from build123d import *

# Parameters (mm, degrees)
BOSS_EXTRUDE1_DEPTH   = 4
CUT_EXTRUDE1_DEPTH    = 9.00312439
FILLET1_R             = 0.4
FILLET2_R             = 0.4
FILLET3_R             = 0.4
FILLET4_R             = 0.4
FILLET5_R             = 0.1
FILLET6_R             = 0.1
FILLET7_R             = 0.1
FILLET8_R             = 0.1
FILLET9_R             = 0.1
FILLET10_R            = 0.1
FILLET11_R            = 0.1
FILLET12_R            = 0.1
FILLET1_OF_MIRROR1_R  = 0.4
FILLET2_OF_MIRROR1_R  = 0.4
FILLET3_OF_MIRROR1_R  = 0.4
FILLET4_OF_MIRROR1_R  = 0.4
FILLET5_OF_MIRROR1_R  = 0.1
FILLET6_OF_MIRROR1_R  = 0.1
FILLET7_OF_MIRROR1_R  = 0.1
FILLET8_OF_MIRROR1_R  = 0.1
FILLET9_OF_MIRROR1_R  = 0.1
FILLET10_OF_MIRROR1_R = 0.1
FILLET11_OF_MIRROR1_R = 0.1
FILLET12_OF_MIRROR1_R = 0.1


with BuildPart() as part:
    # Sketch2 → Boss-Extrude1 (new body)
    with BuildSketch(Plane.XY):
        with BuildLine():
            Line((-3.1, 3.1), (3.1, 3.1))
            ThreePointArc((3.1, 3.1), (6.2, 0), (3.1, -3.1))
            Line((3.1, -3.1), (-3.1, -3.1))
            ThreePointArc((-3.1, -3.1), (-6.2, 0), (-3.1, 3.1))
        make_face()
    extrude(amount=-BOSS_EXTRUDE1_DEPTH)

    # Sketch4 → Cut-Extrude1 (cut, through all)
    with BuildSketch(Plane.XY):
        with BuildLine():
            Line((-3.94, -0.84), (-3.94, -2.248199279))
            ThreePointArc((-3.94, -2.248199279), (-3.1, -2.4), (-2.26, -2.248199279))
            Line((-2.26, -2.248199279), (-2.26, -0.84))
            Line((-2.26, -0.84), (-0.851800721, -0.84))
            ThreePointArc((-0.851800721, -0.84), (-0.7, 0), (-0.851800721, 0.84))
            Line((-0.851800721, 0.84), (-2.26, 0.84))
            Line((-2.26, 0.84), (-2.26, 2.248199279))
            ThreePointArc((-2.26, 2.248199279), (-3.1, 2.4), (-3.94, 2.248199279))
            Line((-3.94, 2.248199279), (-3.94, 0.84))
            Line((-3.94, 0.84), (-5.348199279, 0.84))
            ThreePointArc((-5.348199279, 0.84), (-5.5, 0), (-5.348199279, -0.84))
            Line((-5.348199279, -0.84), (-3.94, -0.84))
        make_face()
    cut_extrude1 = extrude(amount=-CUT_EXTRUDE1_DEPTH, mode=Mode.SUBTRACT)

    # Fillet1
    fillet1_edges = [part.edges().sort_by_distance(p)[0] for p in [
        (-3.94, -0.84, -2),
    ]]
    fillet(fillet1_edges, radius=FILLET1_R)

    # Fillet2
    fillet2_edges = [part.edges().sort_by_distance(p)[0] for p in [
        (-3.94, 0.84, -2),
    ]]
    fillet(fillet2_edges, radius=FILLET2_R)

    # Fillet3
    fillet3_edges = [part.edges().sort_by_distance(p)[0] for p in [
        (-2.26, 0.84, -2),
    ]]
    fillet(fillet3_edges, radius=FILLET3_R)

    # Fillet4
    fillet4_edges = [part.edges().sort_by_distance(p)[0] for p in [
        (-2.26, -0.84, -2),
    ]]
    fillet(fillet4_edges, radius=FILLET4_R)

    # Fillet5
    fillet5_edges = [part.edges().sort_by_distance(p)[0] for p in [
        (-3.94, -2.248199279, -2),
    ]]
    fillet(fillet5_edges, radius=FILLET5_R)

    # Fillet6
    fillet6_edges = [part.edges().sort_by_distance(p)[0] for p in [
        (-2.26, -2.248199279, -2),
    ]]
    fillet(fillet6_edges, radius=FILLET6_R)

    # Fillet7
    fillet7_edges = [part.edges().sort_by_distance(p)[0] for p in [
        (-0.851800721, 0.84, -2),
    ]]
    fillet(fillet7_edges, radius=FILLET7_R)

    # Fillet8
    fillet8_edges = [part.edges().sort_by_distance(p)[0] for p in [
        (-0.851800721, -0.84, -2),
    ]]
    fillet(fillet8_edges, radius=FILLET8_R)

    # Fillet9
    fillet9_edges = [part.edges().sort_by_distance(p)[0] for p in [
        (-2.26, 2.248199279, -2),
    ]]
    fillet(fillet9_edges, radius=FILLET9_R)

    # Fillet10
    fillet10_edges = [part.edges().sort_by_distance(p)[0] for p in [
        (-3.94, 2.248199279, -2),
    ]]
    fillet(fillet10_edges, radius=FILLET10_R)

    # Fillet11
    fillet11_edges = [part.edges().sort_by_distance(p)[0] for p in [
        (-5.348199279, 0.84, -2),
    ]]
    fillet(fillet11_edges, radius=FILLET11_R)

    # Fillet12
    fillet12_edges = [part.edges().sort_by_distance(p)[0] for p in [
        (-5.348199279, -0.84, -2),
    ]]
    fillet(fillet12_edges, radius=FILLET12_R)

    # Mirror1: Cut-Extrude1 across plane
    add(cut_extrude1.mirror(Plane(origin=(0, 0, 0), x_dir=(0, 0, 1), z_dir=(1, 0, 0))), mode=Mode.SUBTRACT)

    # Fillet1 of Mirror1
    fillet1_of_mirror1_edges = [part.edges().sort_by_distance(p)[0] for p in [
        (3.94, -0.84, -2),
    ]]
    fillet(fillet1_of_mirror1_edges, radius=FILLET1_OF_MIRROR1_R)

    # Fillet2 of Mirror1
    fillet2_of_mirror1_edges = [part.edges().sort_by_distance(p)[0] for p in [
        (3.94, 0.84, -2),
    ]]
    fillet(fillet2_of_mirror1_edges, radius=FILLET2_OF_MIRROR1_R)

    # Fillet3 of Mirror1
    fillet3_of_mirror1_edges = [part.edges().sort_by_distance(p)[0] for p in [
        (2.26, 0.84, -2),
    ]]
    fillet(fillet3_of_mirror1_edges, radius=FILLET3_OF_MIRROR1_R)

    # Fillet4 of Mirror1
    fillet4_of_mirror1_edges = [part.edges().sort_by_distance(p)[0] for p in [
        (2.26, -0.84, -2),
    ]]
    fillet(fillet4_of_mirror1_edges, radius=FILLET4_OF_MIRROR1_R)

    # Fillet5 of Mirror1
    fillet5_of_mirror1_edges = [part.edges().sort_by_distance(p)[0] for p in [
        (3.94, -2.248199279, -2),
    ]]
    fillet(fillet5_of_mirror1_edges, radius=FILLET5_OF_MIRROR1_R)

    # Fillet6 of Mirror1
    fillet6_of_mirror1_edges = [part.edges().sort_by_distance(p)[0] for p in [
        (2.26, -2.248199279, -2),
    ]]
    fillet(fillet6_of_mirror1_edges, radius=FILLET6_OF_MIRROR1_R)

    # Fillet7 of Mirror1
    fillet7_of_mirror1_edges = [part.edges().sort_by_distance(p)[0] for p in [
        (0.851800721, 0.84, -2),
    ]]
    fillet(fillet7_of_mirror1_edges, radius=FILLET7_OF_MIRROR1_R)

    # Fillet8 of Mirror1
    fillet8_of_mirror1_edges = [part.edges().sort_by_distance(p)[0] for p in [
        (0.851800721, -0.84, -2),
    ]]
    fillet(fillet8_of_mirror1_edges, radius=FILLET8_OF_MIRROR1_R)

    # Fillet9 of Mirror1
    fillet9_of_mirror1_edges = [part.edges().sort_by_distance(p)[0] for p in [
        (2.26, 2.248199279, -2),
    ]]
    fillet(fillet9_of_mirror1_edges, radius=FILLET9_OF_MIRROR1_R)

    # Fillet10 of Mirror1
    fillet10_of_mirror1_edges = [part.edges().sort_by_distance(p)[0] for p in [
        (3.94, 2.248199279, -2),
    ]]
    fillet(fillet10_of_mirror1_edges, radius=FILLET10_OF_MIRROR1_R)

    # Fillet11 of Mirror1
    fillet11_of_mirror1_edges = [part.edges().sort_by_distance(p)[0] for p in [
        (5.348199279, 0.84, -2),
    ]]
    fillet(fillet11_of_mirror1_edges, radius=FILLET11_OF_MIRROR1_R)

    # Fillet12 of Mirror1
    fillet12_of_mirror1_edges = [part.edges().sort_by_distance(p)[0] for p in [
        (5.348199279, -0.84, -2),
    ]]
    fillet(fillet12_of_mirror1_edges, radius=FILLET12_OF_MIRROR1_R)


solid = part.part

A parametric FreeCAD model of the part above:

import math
import FreeCAD as App
import Part
import Sketcher

V = App.Vector


def edges_at(feature, points):
    """Names of the edges that pass closest to the given points."""
    edges = feature.Shape.Edges
    near = lambda p: min(range(len(edges)), key=lambda i: edges[i].distToShape(Part.Vertex(*p))[0])
    return sorted({f"Edge{near(p) + 1}" for p in points})

doc = App.newDocument("Part")
params = doc.addObject("Spreadsheet::Sheet", "Params")
for row, (alias, value) in enumerate([
    ("sketch1_radius", "3.1 mm"),
    ("sketch1_width", "6.2 mm"),
    ("pad1_length", "4 mm"),
    ("sketch2_radius", "2.4 mm"),
    ("fillet_radius", "0.4 mm"),
    ("fillet2_radius", "0.4 mm"),
    ("fillet3_radius", "0.4 mm"),
    ("fillet4_radius", "0.4 mm"),
    ("fillet5_radius", "0.1 mm"),
    ("fillet6_radius", "0.1 mm"),
    ("fillet7_radius", "0.1 mm"),
    ("fillet8_radius", "0.1 mm"),
    ("fillet9_radius", "0.1 mm"),
    ("fillet10_radius", "0.1 mm"),
    ("fillet11_radius", "0.1 mm"),
    ("fillet12_radius", "0.1 mm"),
    ("fillet13_radius", "0.4 mm"),
    ("fillet14_radius", "0.4 mm"),
    ("fillet15_radius", "0.4 mm"),
    ("fillet16_radius", "0.4 mm"),
    ("fillet17_radius", "0.1 mm"),
    ("fillet18_radius", "0.1 mm"),
    ("fillet19_radius", "0.1 mm"),
    ("fillet20_radius", "0.1 mm"),
    ("fillet21_radius", "0.1 mm"),
    ("fillet22_radius", "0.1 mm"),
    ("fillet23_radius", "0.1 mm"),
    ("fillet24_radius", "0.1 mm"),
], start=1):
    params.set(f"A{row}", alias)
    params.set(f"B{row}", "=" + value)
    params.setAlias(f"B{row}", alias)

body = doc.addObject("PartDesign::Body", "Body")

# Sketch on XY plane
sketch1 = doc.addObject("Sketcher::SketchObject", "Sketch")
body.addObject(sketch1)
sketch1.AttachmentSupport = (doc.XY_Plane, [""])
sketch1.MapMode = "FlatFace"
sketch1.addGeometry(Part.LineSegment(V(3.1, 3.1, 0), V(-3.1, 3.1, 0)), False)
sketch1.addGeometry(Part.ArcOfCircle(Part.Circle(V(-3.1, 0, 0), V(0, 0, 1), 3.1), math.radians(90), math.radians(270)), False)
sketch1.addGeometry(Part.LineSegment(V(-3.1, -3.1, 0), V(3.1, -3.1, 0)), False)
sketch1.addGeometry(Part.ArcOfCircle(Part.Circle(V(3.1, 0, 0), V(0, 0, 1), 3.1), math.radians(-90), math.radians(90)), False)
sketch1.addConstraint(Sketcher.Constraint("Tangent", 0, 2, 1, 1))
sketch1.addConstraint(Sketcher.Constraint("Tangent", 1, 2, 2, 1))
sketch1.addConstraint(Sketcher.Constraint("Tangent", 2, 2, 3, 1))
sketch1.addConstraint(Sketcher.Constraint("Tangent", 3, 2, 0, 1))
sketch1.addConstraint(Sketcher.Constraint("Horizontal", 0))
sketch1.addConstraint(Sketcher.Constraint("Horizontal", 2))
sketch1.addConstraint(Sketcher.Constraint("Symmetric", 1, 3, 3, 3, -1, 1))
sketch1.addConstraint(Sketcher.Constraint("Radius", 1, 3.1))
sketch1.addConstraint(Sketcher.Constraint("DistanceX", 0, 2, 0, 1, 6.2))
sketch1.setExpression("Constraints[7]", "Params.sketch1_radius")
sketch1.setExpression("Constraints[8]", "Params.sketch1_width")
pad1 = doc.addObject("PartDesign::Pad", "Pad")
body.addObject(pad1)
pad1.Profile = sketch1
pad1.setExpression("Length", "Params.pad1_length")
pad1.Reversed = True

# Sketch on XY plane
sketch2 = doc.addObject("Sketcher::SketchObject", "Sketch001")
body.addObject(sketch2)
sketch2.AttachmentSupport = (doc.XY_Plane, [""])
sketch2.MapMode = "FlatFace"
sketch2.addGeometry(Part.LineSegment(V(-3.94, -0.84, 0), V(-3.94, -2.248199, 0)), False)
sketch2.addGeometry(Part.ArcOfCircle(Part.Circle(V(-3.1, 0, 0), V(0, 0, 1), 2.4), math.radians(-110.487315), math.radians(-69.512685)), False)
sketch2.addGeometry(Part.LineSegment(V(-2.26, -2.248199, 0), V(-2.26, -0.84, 0)), False)
sketch2.addGeometry(Part.LineSegment(V(-2.26, -0.84, 0), V(-0.851801, -0.84, 0)), False)
sketch2.addGeometry(Part.ArcOfCircle(Part.Circle(V(-3.1, 0, 0), V(0, 0, 1), 2.4), math.radians(-20.487315), math.radians(20.487315)), False)
sketch2.addGeometry(Part.LineSegment(V(-0.851801, 0.84, 0), V(-2.26, 0.84, 0)), False)
sketch2.addGeometry(Part.LineSegment(V(-2.26, 0.84, 0), V(-2.26, 2.248199, 0)), False)
sketch2.addGeometry(Part.ArcOfCircle(Part.Circle(V(-3.1, 0, 0), V(0, 0, 1), 2.4), math.radians(69.512685), math.radians(110.487315)), False)
sketch2.addGeometry(Part.LineSegment(V(-3.94, 2.248199, 0), V(-3.94, 0.84, 0)), False)
sketch2.addGeometry(Part.LineSegment(V(-3.94, 0.84, 0), V(-5.348199, 0.84, 0)), False)
sketch2.addGeometry(Part.ArcOfCircle(Part.Circle(V(-3.1, 0, 0), V(0, 0, 1), 2.4), math.radians(159.512685), math.radians(200.487315)), False)
sketch2.addGeometry(Part.LineSegment(V(-5.348199, -0.84, 0), V(-3.94, -0.84, 0)), False)
sketch2.addConstraint(Sketcher.Constraint("Coincident", 0, 2, 1, 1))
sketch2.addConstraint(Sketcher.Constraint("Coincident", 1, 2, 2, 1))
sketch2.addConstraint(Sketcher.Constraint("Coincident", 2, 2, 3, 1))
sketch2.addConstraint(Sketcher.Constraint("Coincident", 3, 2, 4, 1))
sketch2.addConstraint(Sketcher.Constraint("Coincident", 4, 2, 5, 1))
sketch2.addConstraint(Sketcher.Constraint("Coincident", 5, 2, 6, 1))
sketch2.addConstraint(Sketcher.Constraint("Coincident", 6, 2, 7, 1))
sketch2.addConstraint(Sketcher.Constraint("Coincident", 7, 2, 8, 1))
sketch2.addConstraint(Sketcher.Constraint("Coincident", 8, 2, 9, 1))
sketch2.addConstraint(Sketcher.Constraint("Coincident", 9, 2, 10, 1))
sketch2.addConstraint(Sketcher.Constraint("Coincident", 10, 2, 11, 1))
sketch2.addConstraint(Sketcher.Constraint("Coincident", 11, 2, 0, 1))
sketch2.addConstraint(Sketcher.Constraint("Vertical", 0))
sketch2.addConstraint(Sketcher.Constraint("Vertical", 2))
sketch2.addConstraint(Sketcher.Constraint("Horizontal", 3))
sketch2.addConstraint(Sketcher.Constraint("Horizontal", 5))
sketch2.addConstraint(Sketcher.Constraint("Vertical", 6))
sketch2.addConstraint(Sketcher.Constraint("Vertical", 8))
sketch2.addConstraint(Sketcher.Constraint("Horizontal", 9))
sketch2.addConstraint(Sketcher.Constraint("Horizontal", 11))
sketch2.addConstraint(Sketcher.Constraint("Coincident", 4, 3, 1, 3))
sketch2.addConstraint(Sketcher.Constraint("Coincident", 7, 3, 1, 3))
sketch2.addConstraint(Sketcher.Constraint("Coincident", 10, 3, 1, 3))
sketch2.addConstraint(Sketcher.Constraint("Equal", 1, 4))
sketch2.addConstraint(Sketcher.Constraint("Equal", 4, 7))
sketch2.addConstraint(Sketcher.Constraint("Equal", 7, 10))
sketch2.addConstraint(Sketcher.Constraint("Symmetric", 3, 2, 4, 2, -1))
sketch2.addConstraint(Sketcher.Constraint("Symmetric", 8, 2, 11, 2, -1))
sketch2.addConstraint(Sketcher.Constraint("Horizontal", 0, 2, 1, 2))
sketch2.addConstraint(Sketcher.Constraint("Horizontal", 6, 2, 7, 2))
sketch2.addConstraint(Sketcher.Constraint("Horizontal", 5, 2, 8, 2))
sketch2.addConstraint(Sketcher.Constraint("Equal", 11, 0))
sketch2.addConstraint(Sketcher.Constraint("Radius", 1, 2.4))
sketch2.addConstraint(Sketcher.Constraint("DistanceX", 1, 3, -1, 1, 3.1))
sketch2.addConstraint(Sketcher.Constraint("DistanceX", 0, 2, -1, 1, 3.94))
sketch2.setExpression("Constraints[32]", "Params.sketch2_radius")
pocket1 = doc.addObject("PartDesign::Pocket", "Pocket")
body.addObject(pocket1)
pocket1.Profile = sketch2
pocket1.Type = "ThroughAll"
doc.recompute()

fillet = doc.addObject("PartDesign::Fillet", "Fillet")
body.addObject(fillet)
fillet.Base = (pocket1, edges_at(pocket1, [(-3.94, -0.84, -2)]))
fillet.setExpression("Radius", "Params.fillet_radius")
doc.recompute()

fillet2 = doc.addObject("PartDesign::Fillet", "Fillet001")
body.addObject(fillet2)
fillet2.Base = (fillet, edges_at(fillet, [(-3.94, 0.84, -2)]))
fillet2.setExpression("Radius", "Params.fillet2_radius")
doc.recompute()

fillet3 = doc.addObject("PartDesign::Fillet", "Fillet002")
body.addObject(fillet3)
fillet3.Base = (fillet2, edges_at(fillet2, [(-2.26, 0.84, -2)]))
fillet3.setExpression("Radius", "Params.fillet3_radius")
doc.recompute()

fillet4 = doc.addObject("PartDesign::Fillet", "Fillet003")
body.addObject(fillet4)
fillet4.Base = (fillet3, edges_at(fillet3, [(-2.26, -0.84, -2)]))
fillet4.setExpression("Radius", "Params.fillet4_radius")
doc.recompute()

fillet5 = doc.addObject("PartDesign::Fillet", "Fillet004")
body.addObject(fillet5)
fillet5.Base = (fillet4, edges_at(fillet4, [(-3.94, -2.248, -2)]))
fillet5.setExpression("Radius", "Params.fillet5_radius")
doc.recompute()

fillet6 = doc.addObject("PartDesign::Fillet", "Fillet005")
body.addObject(fillet6)
fillet6.Base = (fillet5, edges_at(fillet5, [(-2.26, -2.248, -2)]))
fillet6.setExpression("Radius", "Params.fillet6_radius")
doc.recompute()

fillet7 = doc.addObject("PartDesign::Fillet", "Fillet006")
body.addObject(fillet7)
fillet7.Base = (fillet6, edges_at(fillet6, [(-0.852, 0.84, -2)]))
fillet7.setExpression("Radius", "Params.fillet7_radius")
doc.recompute()

fillet8 = doc.addObject("PartDesign::Fillet", "Fillet007")
body.addObject(fillet8)
fillet8.Base = (fillet7, edges_at(fillet7, [(-0.852, -0.84, -2)]))
fillet8.setExpression("Radius", "Params.fillet8_radius")
doc.recompute()

fillet9 = doc.addObject("PartDesign::Fillet", "Fillet008")
body.addObject(fillet9)
fillet9.Base = (fillet8, edges_at(fillet8, [(-2.26, 2.248, -2)]))
fillet9.setExpression("Radius", "Params.fillet9_radius")
doc.recompute()

fillet10 = doc.addObject("PartDesign::Fillet", "Fillet009")
body.addObject(fillet10)
fillet10.Base = (fillet9, edges_at(fillet9, [(-3.94, 2.248, -2)]))
fillet10.setExpression("Radius", "Params.fillet10_radius")
doc.recompute()

fillet11 = doc.addObject("PartDesign::Fillet", "Fillet010")
body.addObject(fillet11)
fillet11.Base = (fillet10, edges_at(fillet10, [(-5.348, 0.84, -2)]))
fillet11.setExpression("Radius", "Params.fillet11_radius")
doc.recompute()

fillet12 = doc.addObject("PartDesign::Fillet", "Fillet011")
body.addObject(fillet12)
fillet12.Base = (fillet11, edges_at(fillet11, [(-5.348, -0.84, -2)]))
fillet12.setExpression("Radius", "Params.fillet12_radius")
doc.recompute()

mirrored = doc.addObject("PartDesign::Mirrored", "Mirrored")
body.addObject(mirrored)
mirrored.Originals = [pocket1]
mirrored.MirrorPlane = (doc.YZ_Plane, [""])
body.Tip = mirrored
doc.recompute()

fillet13 = doc.addObject("PartDesign::Fillet", "Fillet012")
body.addObject(fillet13)
fillet13.Base = (mirrored, edges_at(mirrored, [(3.94, -0.84, -2)]))
fillet13.setExpression("Radius", "Params.fillet13_radius")
doc.recompute()

fillet14 = doc.addObject("PartDesign::Fillet", "Fillet013")
body.addObject(fillet14)
fillet14.Base = (fillet13, edges_at(fillet13, [(3.94, 0.84, -2)]))
fillet14.setExpression("Radius", "Params.fillet14_radius")
doc.recompute()

fillet15 = doc.addObject("PartDesign::Fillet", "Fillet014")
body.addObject(fillet15)
fillet15.Base = (fillet14, edges_at(fillet14, [(2.26, 0.84, -2)]))
fillet15.setExpression("Radius", "Params.fillet15_radius")
doc.recompute()

fillet16 = doc.addObject("PartDesign::Fillet", "Fillet015")
body.addObject(fillet16)
fillet16.Base = (fillet15, edges_at(fillet15, [(2.26, -0.84, -2)]))
fillet16.setExpression("Radius", "Params.fillet16_radius")
doc.recompute()

fillet17 = doc.addObject("PartDesign::Fillet", "Fillet016")
body.addObject(fillet17)
fillet17.Base = (fillet16, edges_at(fillet16, [(3.94, -2.248, -2)]))
fillet17.setExpression("Radius", "Params.fillet17_radius")
doc.recompute()

fillet18 = doc.addObject("PartDesign::Fillet", "Fillet017")
body.addObject(fillet18)
fillet18.Base = (fillet17, edges_at(fillet17, [(2.26, -2.248, -2)]))
fillet18.setExpression("Radius", "Params.fillet18_radius")
doc.recompute()

fillet19 = doc.addObject("PartDesign::Fillet", "Fillet018")
body.addObject(fillet19)
fillet19.Base = (fillet18, edges_at(fillet18, [(0.852, 0.84, -2)]))
fillet19.setExpression("Radius", "Params.fillet19_radius")
doc.recompute()

fillet20 = doc.addObject("PartDesign::Fillet", "Fillet019")
body.addObject(fillet20)
fillet20.Base = (fillet19, edges_at(fillet19, [(0.852, -0.84, -2)]))
fillet20.setExpression("Radius", "Params.fillet20_radius")
doc.recompute()

fillet21 = doc.addObject("PartDesign::Fillet", "Fillet020")
body.addObject(fillet21)
fillet21.Base = (fillet20, edges_at(fillet20, [(2.26, 2.248, -2)]))
fillet21.setExpression("Radius", "Params.fillet21_radius")
doc.recompute()

fillet22 = doc.addObject("PartDesign::Fillet", "Fillet021")
body.addObject(fillet22)
fillet22.Base = (fillet21, edges_at(fillet21, [(3.94, 2.248, -2)]))
fillet22.setExpression("Radius", "Params.fillet22_radius")
doc.recompute()

fillet23 = doc.addObject("PartDesign::Fillet", "Fillet022")
body.addObject(fillet23)
fillet23.Base = (fillet22, edges_at(fillet22, [(5.348, 0.84, -2)]))
fillet23.setExpression("Radius", "Params.fillet23_radius")
doc.recompute()

fillet24 = doc.addObject("PartDesign::Fillet", "Fillet023")
body.addObject(fillet24)
fillet24.Base = (fillet23, edges_at(fillet23, [(5.348, -0.84, -2)]))
fillet24.setExpression("Radius", "Params.fillet24_radius")

doc.recompute()
